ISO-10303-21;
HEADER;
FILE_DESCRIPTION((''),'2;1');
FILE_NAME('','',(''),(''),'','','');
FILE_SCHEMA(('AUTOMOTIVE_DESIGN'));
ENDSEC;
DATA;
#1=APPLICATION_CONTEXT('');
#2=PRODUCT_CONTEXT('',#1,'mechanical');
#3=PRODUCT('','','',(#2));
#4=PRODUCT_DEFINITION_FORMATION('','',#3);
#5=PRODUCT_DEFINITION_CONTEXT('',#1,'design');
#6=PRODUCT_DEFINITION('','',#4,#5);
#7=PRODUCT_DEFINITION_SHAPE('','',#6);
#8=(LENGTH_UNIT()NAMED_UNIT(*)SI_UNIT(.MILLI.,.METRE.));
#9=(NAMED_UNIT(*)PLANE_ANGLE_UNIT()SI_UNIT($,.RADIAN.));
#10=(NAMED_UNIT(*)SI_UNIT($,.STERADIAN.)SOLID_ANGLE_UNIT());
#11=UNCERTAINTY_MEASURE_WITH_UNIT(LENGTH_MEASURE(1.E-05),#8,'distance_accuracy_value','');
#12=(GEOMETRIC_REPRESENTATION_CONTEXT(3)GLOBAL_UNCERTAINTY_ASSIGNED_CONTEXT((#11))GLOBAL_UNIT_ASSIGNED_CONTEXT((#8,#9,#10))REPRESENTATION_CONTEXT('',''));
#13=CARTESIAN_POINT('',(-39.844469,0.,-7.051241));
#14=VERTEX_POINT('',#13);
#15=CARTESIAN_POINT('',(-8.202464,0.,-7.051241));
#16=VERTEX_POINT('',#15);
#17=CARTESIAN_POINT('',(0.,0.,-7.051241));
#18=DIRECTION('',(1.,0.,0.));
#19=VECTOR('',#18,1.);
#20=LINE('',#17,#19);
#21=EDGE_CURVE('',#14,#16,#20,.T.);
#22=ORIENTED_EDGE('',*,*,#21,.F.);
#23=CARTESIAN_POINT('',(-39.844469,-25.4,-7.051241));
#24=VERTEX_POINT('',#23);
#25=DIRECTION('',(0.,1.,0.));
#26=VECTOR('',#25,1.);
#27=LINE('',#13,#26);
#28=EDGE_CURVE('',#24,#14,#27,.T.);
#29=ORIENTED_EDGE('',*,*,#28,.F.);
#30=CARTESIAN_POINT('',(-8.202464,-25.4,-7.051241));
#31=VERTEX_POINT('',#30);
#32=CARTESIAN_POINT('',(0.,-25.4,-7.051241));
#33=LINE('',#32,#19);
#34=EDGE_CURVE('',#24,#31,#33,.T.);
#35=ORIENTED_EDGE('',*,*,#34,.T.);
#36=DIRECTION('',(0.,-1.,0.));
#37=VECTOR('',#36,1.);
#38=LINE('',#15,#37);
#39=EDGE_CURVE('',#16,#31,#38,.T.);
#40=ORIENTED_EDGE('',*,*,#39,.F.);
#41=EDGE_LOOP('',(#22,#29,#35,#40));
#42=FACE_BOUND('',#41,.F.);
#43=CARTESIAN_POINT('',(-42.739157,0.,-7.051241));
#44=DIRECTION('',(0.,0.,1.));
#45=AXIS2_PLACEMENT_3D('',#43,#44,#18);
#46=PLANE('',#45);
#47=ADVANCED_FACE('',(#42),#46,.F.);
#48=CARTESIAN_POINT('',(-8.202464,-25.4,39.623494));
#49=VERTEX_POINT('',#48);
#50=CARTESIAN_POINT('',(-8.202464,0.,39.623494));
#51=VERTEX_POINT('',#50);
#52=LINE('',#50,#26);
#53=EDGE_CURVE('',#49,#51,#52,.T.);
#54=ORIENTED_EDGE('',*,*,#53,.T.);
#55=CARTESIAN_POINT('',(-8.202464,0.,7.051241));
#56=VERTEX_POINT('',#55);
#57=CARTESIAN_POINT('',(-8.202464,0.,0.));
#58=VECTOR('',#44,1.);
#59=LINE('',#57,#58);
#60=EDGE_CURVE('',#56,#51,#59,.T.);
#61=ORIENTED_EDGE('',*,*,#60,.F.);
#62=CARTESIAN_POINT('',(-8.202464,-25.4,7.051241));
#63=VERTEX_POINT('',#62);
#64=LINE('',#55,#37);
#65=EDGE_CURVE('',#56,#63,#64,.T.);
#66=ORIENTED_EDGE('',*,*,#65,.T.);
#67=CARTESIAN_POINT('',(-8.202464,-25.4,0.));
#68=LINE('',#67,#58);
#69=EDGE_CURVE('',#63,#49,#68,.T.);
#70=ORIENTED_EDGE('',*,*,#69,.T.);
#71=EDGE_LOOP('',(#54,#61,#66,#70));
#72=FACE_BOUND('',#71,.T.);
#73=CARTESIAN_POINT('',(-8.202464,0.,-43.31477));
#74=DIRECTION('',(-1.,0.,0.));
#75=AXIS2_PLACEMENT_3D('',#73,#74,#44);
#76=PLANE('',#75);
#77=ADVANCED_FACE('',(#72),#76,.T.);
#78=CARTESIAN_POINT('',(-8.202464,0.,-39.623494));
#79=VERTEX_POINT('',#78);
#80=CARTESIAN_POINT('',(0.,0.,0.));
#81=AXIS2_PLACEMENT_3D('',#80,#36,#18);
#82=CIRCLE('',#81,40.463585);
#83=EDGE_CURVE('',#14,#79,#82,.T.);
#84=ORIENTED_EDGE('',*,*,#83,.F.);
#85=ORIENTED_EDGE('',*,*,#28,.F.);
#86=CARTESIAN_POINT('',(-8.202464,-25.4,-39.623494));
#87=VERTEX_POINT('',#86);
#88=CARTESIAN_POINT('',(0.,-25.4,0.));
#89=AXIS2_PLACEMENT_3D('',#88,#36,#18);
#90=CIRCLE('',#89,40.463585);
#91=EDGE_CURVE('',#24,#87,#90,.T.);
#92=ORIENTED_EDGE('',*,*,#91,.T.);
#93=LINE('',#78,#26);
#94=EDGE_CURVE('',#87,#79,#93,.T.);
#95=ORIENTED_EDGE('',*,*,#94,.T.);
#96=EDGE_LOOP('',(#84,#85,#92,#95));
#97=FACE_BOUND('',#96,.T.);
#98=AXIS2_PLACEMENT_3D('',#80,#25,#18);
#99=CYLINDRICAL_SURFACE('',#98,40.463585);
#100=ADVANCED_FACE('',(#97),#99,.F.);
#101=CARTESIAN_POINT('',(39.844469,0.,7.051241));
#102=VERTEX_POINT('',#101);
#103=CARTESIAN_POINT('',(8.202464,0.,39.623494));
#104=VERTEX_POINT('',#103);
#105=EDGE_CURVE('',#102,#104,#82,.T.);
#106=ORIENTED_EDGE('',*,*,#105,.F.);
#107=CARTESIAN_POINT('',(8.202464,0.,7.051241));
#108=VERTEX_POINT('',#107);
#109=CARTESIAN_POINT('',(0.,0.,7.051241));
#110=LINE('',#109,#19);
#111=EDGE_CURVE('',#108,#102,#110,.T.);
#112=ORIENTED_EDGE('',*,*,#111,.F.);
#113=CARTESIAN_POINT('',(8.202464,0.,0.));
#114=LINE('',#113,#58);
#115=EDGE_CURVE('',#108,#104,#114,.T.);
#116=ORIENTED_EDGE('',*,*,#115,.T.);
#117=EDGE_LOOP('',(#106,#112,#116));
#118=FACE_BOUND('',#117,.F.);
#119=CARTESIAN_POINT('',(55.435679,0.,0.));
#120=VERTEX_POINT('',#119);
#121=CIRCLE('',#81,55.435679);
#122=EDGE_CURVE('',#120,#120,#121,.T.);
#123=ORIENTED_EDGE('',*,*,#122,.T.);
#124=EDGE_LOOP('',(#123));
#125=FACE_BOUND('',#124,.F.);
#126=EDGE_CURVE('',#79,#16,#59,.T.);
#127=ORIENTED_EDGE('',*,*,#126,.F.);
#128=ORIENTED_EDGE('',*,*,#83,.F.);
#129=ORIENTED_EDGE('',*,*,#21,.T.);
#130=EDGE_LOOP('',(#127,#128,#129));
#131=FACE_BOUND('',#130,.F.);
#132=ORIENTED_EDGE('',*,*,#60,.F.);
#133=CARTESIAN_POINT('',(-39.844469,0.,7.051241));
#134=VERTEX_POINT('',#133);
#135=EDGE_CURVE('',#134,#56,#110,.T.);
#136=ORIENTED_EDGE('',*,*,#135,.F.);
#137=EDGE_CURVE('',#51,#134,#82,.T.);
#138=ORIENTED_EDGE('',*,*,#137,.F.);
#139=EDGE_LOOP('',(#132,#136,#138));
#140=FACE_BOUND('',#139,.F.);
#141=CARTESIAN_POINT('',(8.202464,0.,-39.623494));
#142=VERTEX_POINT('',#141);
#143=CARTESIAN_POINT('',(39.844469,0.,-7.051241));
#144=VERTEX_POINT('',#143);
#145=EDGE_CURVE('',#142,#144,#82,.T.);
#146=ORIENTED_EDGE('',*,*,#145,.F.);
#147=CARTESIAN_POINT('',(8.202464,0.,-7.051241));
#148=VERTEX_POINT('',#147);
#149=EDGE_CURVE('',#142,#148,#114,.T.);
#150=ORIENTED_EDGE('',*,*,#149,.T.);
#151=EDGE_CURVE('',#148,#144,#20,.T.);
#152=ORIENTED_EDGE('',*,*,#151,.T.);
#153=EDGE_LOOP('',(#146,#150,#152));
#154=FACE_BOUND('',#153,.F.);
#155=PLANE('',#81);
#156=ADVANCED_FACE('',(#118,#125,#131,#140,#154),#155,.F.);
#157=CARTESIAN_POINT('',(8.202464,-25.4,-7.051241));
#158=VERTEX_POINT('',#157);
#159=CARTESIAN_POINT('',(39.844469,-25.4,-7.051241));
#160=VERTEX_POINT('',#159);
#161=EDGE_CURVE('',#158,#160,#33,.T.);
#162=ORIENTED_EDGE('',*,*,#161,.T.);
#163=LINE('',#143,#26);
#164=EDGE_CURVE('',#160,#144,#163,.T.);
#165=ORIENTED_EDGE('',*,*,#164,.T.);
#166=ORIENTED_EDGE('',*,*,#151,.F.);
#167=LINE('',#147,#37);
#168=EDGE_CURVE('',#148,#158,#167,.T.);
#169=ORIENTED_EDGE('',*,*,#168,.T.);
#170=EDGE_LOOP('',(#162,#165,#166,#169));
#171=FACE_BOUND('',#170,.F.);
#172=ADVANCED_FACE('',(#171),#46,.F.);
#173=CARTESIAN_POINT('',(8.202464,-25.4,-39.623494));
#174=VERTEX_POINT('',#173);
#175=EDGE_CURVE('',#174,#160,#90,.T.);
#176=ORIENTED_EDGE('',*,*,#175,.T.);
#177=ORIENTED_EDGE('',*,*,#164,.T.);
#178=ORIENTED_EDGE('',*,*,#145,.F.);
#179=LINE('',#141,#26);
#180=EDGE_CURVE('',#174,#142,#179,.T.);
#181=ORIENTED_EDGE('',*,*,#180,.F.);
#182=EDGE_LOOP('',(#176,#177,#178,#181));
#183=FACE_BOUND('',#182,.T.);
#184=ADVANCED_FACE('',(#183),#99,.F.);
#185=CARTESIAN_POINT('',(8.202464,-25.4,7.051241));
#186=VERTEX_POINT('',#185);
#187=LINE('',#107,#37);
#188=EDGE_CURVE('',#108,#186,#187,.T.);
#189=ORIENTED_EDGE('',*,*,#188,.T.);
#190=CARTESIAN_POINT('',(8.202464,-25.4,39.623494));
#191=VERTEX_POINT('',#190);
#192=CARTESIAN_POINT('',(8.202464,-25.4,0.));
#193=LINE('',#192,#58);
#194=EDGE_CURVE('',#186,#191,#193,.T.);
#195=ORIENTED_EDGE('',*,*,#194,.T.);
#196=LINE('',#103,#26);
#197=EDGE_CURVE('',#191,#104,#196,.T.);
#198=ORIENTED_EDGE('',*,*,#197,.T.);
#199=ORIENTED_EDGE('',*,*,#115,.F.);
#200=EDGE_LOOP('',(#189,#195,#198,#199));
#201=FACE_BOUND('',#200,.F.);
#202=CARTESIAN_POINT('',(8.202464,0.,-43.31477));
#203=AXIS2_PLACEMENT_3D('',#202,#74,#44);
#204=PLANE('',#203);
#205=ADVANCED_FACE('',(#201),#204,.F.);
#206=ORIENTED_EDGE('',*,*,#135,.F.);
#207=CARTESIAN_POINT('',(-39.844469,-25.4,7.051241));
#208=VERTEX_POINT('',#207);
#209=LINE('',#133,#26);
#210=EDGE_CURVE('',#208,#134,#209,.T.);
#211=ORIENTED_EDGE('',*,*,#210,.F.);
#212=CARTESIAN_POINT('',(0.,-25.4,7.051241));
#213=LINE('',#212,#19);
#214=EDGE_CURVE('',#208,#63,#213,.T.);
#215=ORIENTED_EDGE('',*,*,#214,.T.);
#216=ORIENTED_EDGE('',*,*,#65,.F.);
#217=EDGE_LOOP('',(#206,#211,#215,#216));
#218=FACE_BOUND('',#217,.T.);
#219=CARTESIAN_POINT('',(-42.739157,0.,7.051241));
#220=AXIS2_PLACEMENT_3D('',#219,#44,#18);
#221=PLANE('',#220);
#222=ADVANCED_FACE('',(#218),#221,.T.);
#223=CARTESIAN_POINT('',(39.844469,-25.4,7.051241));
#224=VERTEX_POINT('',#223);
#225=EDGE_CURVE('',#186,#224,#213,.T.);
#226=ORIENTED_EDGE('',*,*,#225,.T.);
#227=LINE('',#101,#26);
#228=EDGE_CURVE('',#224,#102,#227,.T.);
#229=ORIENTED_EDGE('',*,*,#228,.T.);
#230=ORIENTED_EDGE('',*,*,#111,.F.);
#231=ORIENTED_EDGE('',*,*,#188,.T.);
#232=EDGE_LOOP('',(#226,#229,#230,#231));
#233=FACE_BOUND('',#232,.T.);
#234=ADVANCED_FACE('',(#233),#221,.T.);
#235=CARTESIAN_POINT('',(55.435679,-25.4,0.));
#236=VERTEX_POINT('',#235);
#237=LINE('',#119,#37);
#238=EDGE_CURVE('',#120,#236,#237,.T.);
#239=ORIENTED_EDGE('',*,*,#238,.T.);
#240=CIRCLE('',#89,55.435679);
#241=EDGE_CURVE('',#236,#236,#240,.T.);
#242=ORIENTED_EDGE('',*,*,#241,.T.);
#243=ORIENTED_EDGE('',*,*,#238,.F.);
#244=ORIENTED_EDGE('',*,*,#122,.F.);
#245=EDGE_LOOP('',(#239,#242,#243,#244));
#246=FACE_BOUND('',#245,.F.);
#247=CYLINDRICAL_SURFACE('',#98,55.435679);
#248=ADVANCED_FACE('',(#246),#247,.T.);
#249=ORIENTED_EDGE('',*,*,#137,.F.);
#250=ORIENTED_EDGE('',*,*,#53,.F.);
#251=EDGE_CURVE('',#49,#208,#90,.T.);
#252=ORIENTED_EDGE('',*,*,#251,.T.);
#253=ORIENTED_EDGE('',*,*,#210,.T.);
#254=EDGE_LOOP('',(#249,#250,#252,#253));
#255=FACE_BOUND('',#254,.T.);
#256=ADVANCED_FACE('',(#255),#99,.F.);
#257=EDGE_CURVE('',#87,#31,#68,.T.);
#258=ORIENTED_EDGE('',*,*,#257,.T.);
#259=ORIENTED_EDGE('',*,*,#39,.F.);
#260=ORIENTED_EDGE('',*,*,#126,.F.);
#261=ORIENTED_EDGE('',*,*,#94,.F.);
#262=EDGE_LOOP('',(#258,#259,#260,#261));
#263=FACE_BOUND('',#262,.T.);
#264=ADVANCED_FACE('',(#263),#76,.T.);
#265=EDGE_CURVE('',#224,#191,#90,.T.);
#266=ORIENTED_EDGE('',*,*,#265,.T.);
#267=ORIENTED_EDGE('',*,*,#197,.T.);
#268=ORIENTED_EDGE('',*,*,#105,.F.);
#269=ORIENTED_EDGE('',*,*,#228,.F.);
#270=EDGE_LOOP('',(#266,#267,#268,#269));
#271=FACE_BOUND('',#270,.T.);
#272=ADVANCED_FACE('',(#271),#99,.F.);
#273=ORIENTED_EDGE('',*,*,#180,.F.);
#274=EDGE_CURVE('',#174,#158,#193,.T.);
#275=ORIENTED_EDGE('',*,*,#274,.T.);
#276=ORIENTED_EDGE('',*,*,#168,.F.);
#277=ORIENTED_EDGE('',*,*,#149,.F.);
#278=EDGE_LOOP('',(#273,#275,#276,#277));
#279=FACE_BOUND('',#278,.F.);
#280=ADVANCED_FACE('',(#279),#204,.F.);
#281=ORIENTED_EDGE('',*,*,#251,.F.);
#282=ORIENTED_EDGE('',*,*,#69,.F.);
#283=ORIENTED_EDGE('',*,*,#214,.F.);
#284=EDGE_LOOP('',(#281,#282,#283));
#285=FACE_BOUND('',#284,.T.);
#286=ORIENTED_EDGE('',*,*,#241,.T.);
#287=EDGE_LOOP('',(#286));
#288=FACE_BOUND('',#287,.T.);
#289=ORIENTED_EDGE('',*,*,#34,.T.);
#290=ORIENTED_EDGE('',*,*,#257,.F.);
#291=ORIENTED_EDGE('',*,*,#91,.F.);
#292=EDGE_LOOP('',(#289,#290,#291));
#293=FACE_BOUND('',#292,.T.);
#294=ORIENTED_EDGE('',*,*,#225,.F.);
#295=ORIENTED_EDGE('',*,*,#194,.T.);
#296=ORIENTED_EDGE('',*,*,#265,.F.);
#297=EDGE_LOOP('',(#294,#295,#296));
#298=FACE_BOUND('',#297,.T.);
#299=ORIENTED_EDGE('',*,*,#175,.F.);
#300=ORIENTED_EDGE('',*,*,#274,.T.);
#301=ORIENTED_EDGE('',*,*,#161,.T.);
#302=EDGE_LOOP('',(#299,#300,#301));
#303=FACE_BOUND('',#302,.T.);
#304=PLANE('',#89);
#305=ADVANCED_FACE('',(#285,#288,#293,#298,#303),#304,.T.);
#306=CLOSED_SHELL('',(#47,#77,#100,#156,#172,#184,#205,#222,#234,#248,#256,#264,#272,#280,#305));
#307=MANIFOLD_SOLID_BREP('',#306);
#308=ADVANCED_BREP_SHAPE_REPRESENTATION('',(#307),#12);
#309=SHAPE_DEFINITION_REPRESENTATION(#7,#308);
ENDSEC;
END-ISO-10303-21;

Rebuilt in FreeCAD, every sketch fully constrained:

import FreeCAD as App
import Part
import Sketcher

V = App.Vector
Q = App.Units.Quantity

doc = App.newDocument("Part")
body = doc.addObject("PartDesign::Body", "Body")

# Sketch on XZ plane
sketch1 = body.newObject("Sketcher::SketchObject", "Sketch")
sketch1.AttachmentSupport = (doc.getObject("XZ_Plane"), [""])
sketch1.MapMode = "FlatFace"
sketch1.addGeometry(Part.Circle(V(0, 0, 0), V(0, 0, 1), 55), False)
sketch1.addGeometry(Part.Circle(V(0, 0, 0), V(0, 0, 1), 40), False)
sketch1.addConstraint(Sketcher.Constraint("Coincident", 0, 3, -1, 1))
sketch1.addConstraint(Sketcher.Constraint("Coincident", 1, 3, -1, 1))
sketch1.addConstraint(Sketcher.Constraint("Diameter", 0, Q("110.871358 mm")))
sketch1.addConstraint(Sketcher.Constraint("Diameter", 1, Q("80.92717 mm")))
pad1 = body.newObject("PartDesign::Pad", "Pad")
pad1.Profile = sketch1
pad1.Length = Q("1 in")

# Sketch on XZ plane
sketch2 = body.newObject("Sketcher::SketchObject", "Sketch001")
sketch2.AttachmentSupport = (doc.getObject("XZ_Plane"), [""])
sketch2.MapMode = "FlatFace"
sketch2.addGeometry(Part.LineSegment(V(-43, 7, 0), V(-43, -7, 0)), False)
sketch2.addGeometry(Part.LineSegment(V(-43, -7, 0), V(43, -7, 0)), False)
sketch2.addGeometry(Part.LineSegment(V(43, -7, 0), V(43, 7, 0)), False)
sketch2.addGeometry(Part.LineSegment(V(43, 7, 0), V(-43, 7, 0)), False)
sketch2.addConstraint(Sketcher.Constraint("Coincident", 0, 2, 1, 1))
sketch2.addConstraint(Sketcher.Constraint("Coincident", 1, 2, 2, 1))
sketch2.addConstraint(Sketcher.Constraint("Coincident", 2, 2, 3, 1))
sketch2.addConstraint(Sketcher.Constraint("Coincident", 3, 2, 0, 1))
sketch2.addConstraint(Sketcher.Constraint("Vertical", 0))
sketch2.addConstraint(Sketcher.Constraint("Horizontal", 1))
sketch2.addConstraint(Sketcher.Constraint("Vertical", 2))
sketch2.addConstraint(Sketcher.Constraint("Horizontal", 3))
sketch2.addConstraint(Sketcher.Constraint("Symmetric", 0, 2, 2, 2, -1, 1))
sketch2.addConstraint(Sketcher.Constraint("DistanceX", 1, 1, 1, 2, Q("85.478314 mm")))
sketch2.addConstraint(Sketcher.Constraint("DistanceY", 0, 2, 0, 1, Q("14.102482 mm")))
pad2 = body.newObject("PartDesign::Pad", "Pad001")
pad2.Profile = sketch2
pad2.Length = Q("1 in")

# Sketch on XZ plane
sketch3 = body.newObject("Sketcher::SketchObject", "Sketch002")
sketch3.AttachmentSupport = (doc.getObject("XZ_Plane"), [""])
sketch3.MapMode = "FlatFace"
sketch3.addGeometry(Part.LineSegment(V(-8, 43, 0), V(-8, -43, 0)), False)
sketch3.addGeometry(Part.LineSegment(V(-8, -43, 0), V(8, -43, 0)), False)
sketch3.addGeometry(Part.LineSegment(V(8, -43, 0), V(8, 43, 0)), False)
sketch3.addGeometry(Part.LineSegment(V(8, 43, 0), V(-8, 43, 0)), False)
sketch3.addConstraint(Sketcher.Constraint("Coincident", 0, 2, 1, 1))
sketch3.addConstraint(Sketcher.Constraint("Coincident", 1, 2, 2, 1))
sketch3.addConstraint(Sketcher.Constraint("Coincident", 2, 2, 3, 1))
sketch3.addConstraint(Sketcher.Constraint("Coincident", 3, 2, 0, 1))
sketch3.addConstraint(Sketcher.Constraint("Vertical", 0))
sketch3.addConstraint(Sketcher.Constraint("Horizontal", 1))
sketch3.addConstraint(Sketcher.Constraint("Vertical", 2))
sketch3.addConstraint(Sketcher.Constraint("Horizontal", 3))
sketch3.addConstraint(Sketcher.Constraint("Symmetric", 0, 2, 2, 2, -1, 1))
sketch3.addConstraint(Sketcher.Constraint("DistanceX", 1, 1, 1, 2, Q("16.404928 mm")))
sketch3.addConstraint(Sketcher.Constraint("DistanceY", 0, 2, 0, 1, Q("86.62954 mm")))
pad3 = body.newObject("PartDesign::Pad", "Pad002")
pad3.Profile = sketch3
pad3.Length = Q("1 in")

doc.recompute()
